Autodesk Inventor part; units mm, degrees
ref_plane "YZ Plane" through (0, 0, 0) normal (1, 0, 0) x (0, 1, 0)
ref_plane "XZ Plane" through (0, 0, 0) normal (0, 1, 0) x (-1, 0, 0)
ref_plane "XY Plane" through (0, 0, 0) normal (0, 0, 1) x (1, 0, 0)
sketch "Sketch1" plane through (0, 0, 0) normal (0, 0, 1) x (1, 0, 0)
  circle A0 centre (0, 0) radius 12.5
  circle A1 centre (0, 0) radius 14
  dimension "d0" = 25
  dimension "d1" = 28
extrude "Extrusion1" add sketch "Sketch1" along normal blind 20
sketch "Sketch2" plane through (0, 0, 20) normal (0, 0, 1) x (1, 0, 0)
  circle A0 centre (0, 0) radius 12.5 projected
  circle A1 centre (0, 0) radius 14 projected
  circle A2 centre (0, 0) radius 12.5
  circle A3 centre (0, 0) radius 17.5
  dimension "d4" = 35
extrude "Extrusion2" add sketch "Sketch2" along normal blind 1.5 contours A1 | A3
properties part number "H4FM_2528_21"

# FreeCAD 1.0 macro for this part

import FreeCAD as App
import Part
import Sketcher

V = App.Vector

doc = App.newDocument("Part")
params = doc.addObject("Spreadsheet::Sheet", "Params")
for row, (alias, value) in enumerate([
    ("sketch1_diameter", "28 mm"),
    ("sketch1_diameter2", "25 mm"),
    ("pad1_length", "20 mm"),
    ("sketch2_diameter", "35 mm"),
    ("sketch2_diameter2", "25 mm"),
    ("pad2_length", "1.5 mm"),
], start=1):
    params.set(f"A{row}", alias)
    params.set(f"B{row}", "=" + value)
    params.setAlias(f"B{row}", alias)

body = doc.addObject("PartDesign::Body", "Body")

# Sketch on XY plane
sketch1 = body.newObject("Sketcher::SketchObject", "Sketch")
sketch1.AttachmentSupport = (doc.getObject("XY_Plane"), [""])
sketch1.MapMode = "FlatFace"
sketch1.addGeometry(Part.Circle(V(0, 0, 0), V(0, 0, 1), 14), False)
sketch1.addGeometry(Part.Circle(V(0, 0, 0), V(0, 0, 1), 12.5), False)
sketch1.addConstraint(Sketcher.Constraint("Coincident", 0, 3, -1, 1))
sketch1.addConstraint(Sketcher.Constraint("Coincident", 1, 3, -1, 1))
sketch1.addConstraint(Sketcher.Constraint("Diameter", 0, 28.0))
sketch1.addConstraint(Sketcher.Constraint("Diameter", 1, 25.0))
sketch1.setExpression("Constraints[2]", "Params.sketch1_diameter")
sketch1.setExpression("Constraints[3]", "Params.sketch1_diameter2")
pad1 = body.newObject("PartDesign::Pad", "Pad")
pad1.Profile = sketch1
pad1.setExpression("Length", "Params.pad1_length")

# Sketch on XY plane
sketch2 = body.newObject("Sketcher::SketchObject", "Sketch001")
sketch2.AttachmentSupport = (doc.getObject("XY_Plane"), [""])
sketch2.MapMode = "FlatFace"
sketch2.AttachmentOffset = App.Placement(V(0, 0, 20), App.Rotation())
sketch2.addGeometry(Part.Circle(V(0, 0, 0), V(0, 0, 1), 17.5), False)
sketch2.addGeometry(Part.Circle(V(0, 0, 0), V(0, 0, 1), 12.5), False)
sketch2.addConstraint(Sketcher.Constraint("Coincident", 0, 3, -1, 1))
sketch2.addConstraint(Sketcher.Constraint("Coincident", 1, 3, -1, 1))
sketch2.addConstraint(Sketcher.Constraint("Diameter", 0, 35.0))
sketch2.addConstraint(Sketcher.Constraint("Diameter", 1, 25.0))
sketch2.setExpression("Constraints[2]", "Params.sketch2_diameter")
sketch2.setExpression("Constraints[3]", "Params.sketch2_diameter2")
pad2 = body.newObject("PartDesign::Pad", "Pad001")
pad2.Profile = sketch2
pad2.setExpression("Length", "Params.pad2_length")

doc.recompute()
